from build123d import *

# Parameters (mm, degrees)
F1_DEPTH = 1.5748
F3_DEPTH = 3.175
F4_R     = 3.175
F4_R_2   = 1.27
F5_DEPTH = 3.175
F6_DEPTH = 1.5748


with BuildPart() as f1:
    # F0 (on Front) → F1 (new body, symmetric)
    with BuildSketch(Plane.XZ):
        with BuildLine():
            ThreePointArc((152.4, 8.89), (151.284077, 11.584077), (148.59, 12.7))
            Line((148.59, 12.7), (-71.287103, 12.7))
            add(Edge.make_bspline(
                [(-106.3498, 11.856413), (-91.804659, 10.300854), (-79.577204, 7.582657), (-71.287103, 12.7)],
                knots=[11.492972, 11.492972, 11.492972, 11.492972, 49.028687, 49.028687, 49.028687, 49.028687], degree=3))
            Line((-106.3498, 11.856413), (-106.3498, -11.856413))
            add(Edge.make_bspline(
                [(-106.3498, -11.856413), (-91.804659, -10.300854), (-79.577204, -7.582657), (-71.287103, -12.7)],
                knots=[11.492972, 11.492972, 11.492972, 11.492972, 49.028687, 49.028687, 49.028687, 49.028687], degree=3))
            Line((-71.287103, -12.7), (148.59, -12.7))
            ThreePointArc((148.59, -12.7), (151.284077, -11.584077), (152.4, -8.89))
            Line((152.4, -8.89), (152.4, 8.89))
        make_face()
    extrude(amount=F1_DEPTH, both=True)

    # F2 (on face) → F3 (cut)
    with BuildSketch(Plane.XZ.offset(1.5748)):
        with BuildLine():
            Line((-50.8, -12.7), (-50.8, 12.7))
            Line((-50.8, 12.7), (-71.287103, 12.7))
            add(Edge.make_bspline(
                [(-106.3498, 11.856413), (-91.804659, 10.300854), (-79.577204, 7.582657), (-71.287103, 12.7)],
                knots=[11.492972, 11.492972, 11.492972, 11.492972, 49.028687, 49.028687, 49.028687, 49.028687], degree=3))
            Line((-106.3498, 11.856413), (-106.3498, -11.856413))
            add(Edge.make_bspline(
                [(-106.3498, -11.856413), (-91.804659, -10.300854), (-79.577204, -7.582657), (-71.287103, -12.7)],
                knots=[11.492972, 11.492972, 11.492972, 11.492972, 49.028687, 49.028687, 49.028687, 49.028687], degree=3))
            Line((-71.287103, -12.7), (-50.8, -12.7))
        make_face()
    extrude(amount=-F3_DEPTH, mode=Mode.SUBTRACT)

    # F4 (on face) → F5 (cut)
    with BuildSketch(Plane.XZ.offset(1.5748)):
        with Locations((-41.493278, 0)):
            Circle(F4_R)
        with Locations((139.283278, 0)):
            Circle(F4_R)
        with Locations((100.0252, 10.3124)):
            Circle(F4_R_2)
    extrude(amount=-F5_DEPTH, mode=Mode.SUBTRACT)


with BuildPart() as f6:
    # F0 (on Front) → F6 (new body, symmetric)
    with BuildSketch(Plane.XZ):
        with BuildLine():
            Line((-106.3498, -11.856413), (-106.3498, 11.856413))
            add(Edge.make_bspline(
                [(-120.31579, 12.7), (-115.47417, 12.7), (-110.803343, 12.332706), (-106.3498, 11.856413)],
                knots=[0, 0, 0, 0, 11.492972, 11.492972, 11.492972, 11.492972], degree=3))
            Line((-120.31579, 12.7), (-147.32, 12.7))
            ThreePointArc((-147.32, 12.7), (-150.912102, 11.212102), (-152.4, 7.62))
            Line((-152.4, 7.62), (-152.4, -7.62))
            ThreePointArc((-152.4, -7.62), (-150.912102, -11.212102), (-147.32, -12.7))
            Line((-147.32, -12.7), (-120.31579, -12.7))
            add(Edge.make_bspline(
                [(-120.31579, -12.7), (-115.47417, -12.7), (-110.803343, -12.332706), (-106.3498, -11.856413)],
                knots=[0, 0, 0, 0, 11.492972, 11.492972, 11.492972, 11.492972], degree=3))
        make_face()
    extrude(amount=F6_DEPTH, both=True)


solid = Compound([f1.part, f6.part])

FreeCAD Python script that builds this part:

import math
import FreeCAD as App
import Part
import Sketcher

V = App.Vector
Q = App.Units.Quantity

doc = App.newDocument("Part")
body = doc.addObject("PartDesign::Body", "Body")

# Sketch on XZ plane
sketch1 = body.newObject("Sketcher::SketchObject", "Sketch")
sketch1.AttachmentSupport = (doc.getObject("XZ_Plane"), [""])
sketch1.MapMode = "FlatFace"
sketch1.addGeometry([
    Part.ArcOfCircle(Part.Circle(V(148.590001, 8.890001, 0), V(0, 0, 1), 3.809999), math.radians(-0.000008), math.radians(90.000008)),  # 0
    Part.LineSegment(V(148.59, 12.7, 0), V(-71.287103, 12.7, 0)),  # 1
    Part.BSplineCurve([V(-106.3498, 11.856413, 0), V(-91.804659, 10.300854, 0), V(-79.577204, 7.582657, 0), V(-71.287103, 12.7, 0)], [4, 4], [11.492972, 49.028687], False, 3, [1, 1, 1, 1], False),  # 2
    Part.LineSegment(V(-106.3498, 11.856413, 0), V(-106.3498, -11.856413, 0)),  # 3
    Part.BSplineCurve([V(-106.3498, -11.856413, 0), V(-91.804659, -10.300854, 0), V(-79.577204, -7.582657, 0), V(-71.287103, -12.7, 0)], [4, 4], [11.492972, 49.028687], False, 3, [1, 1, 1, 1], False),  # 4
    Part.LineSegment(V(-71.287103, -12.7, 0), V(148.59, -12.7, 0)),  # 5
    Part.ArcOfCircle(Part.Circle(V(148.590001, -8.890001, 0), V(0, 0, 1), 3.809999), math.radians(-90.000008), math.radians(0.000008)),  # 6
    Part.LineSegment(V(152.4, -8.89, 0), V(152.4, 8.89, 0)),  # 7
], False)
sketch1.addConstraint([
    Sketcher.Constraint("Block", 2),
    Sketcher.Constraint("Block", 4),
    Sketcher.Constraint("Tangent", 0, 2, 1, 1),
    Sketcher.Constraint("Coincident", 1, 2, 2, 2),
    Sketcher.Constraint("Coincident", 2, 1, 3, 1),
    Sketcher.Constraint("Coincident", 3, 2, 4, 1),
    Sketcher.Constraint("Coincident", 4, 2, 5, 1),
    Sketcher.Constraint("Tangent", 5, 2, 6, 1),
    Sketcher.Constraint("Tangent", 6, 2, 7, 1),
    Sketcher.Constraint("Tangent", 7, 2, 0, 1),
    Sketcher.Constraint("Horizontal", 1),
    Sketcher.Constraint("Horizontal", 5),
    Sketcher.Constraint("Vertical", 7),
    Sketcher.Constraint("Equal", 0, 6),
    Sketcher.Constraint("Radius", 0, Q("0.15 in")),
    Sketcher.Constraint("DistanceX", -1, 1, 6, 2, Q("6 in")),
])
pad1 = body.newObject("PartDesign::Pad", "Pad")
pad1.Profile = sketch1
pad1.Length = Q("0.124 in")
pad1.Midplane = True

# Sketch on XZ plane
sketch2 = body.newObject("Sketcher::SketchObject", "Sketch001")
sketch2.AttachmentSupport = (doc.getObject("XZ_Plane"), [""])
sketch2.MapMode = "FlatFace"
sketch2.AttachmentOffset = App.Placement(V(0, 0, 0.062 * 25.4), App.Rotation())
sketch2.addGeometry([
    Part.LineSegment(V(-50.8, -12.7, 0), V(-50.8, 12.7, 0)),  # 0
    Part.LineSegment(V(-50.8, 12.7, 0), V(-71.287103, 12.7, 0)),  # 1
    Part.BSplineCurve([V(-106.3498, 11.856413, 0), V(-91.804659, 10.300854, 0), V(-79.577204, 7.582657, 0), V(-71.287103, 12.7, 0)], [4, 4], [11.492972, 49.028687], False, 3, [1, 1, 1, 1], False),  # 2
    Part.LineSegment(V(-106.3498, 11.856413, 0), V(-106.3498, -11.856413, 0)),  # 3
    Part.BSplineCurve([V(-106.3498, -11.856413, 0), V(-91.804659, -10.300854, 0), V(-79.577204, -7.582657, 0), V(-71.287103, -12.7, 0)], [4, 4], [11.492972, 49.028687], False, 3, [1, 1, 1, 1], False),  # 4
    Part.LineSegment(V(-71.287103, -12.7, 0), V(-50.8, -12.7, 0)),  # 5
], False)
sketch2.addConstraint([
    Sketcher.Constraint("Block", 2),
    Sketcher.Constraint("Block", 4),
    Sketcher.Constraint("Coincident", 0, 2, 1, 1),
    Sketcher.Constraint("Coincident", 1, 2, 2, 2),
    Sketcher.Constraint("Coincident", 2, 1, 3, 1),
    Sketcher.Constraint("Coincident", 3, 2, 4, 1),
    Sketcher.Constraint("Coincident", 4, 2, 5, 1),
    Sketcher.Constraint("Coincident", 5, 2, 0, 1),
    Sketcher.Constraint("Vertical", 0),
    Sketcher.Constraint("Horizontal", 1),
    Sketcher.Constraint("Horizontal", 5),
    Sketcher.Constraint("DistanceX", 0, 2, -1, 1, Q("2 in")),
])
pocket1 = body.newObject("PartDesign::Pocket", "Pocket")
pocket1.Profile = sketch2
pocket1.Length = Q("0.125 in")

# Sketch on XZ plane
sketch3 = body.newObject("Sketcher::SketchObject", "Sketch002")
sketch3.AttachmentSupport = (doc.getObject("XZ_Plane"), [""])
sketch3.MapMode = "FlatFace"
sketch3.AttachmentOffset = App.Placement(V(0, 0, 0.062 * 25.4), App.Rotation())
sketch3.addGeometry([
    Part.Circle(V(-41.5, 0, 0), V(0, 0, 1), 3.2),
    Part.Circle(V(139.3, 0, 0), V(0, 0, 1), 3.2),
    Part.Circle(V(100, 10.3, 0), V(0, 0, 1), 1.3),
], False)
sketch3.addConstraint([
    Sketcher.Constraint("Equal", 0, 1),
    Sketcher.Constraint("PointOnObject", 0, 3, -1),
    Sketcher.Constraint("PointOnObject", 1, 3, -1),
    Sketcher.Constraint("Diameter", 2, Q("0.1 in")),
    Sketcher.Constraint("Diameter", 0, Q("0.25 in")),
    Sketcher.Constraint("DistanceX", -1, 1, 2, 3, Q("3.938 in")),
    Sketcher.Constraint("DistanceY", -1, 1, 2, 3, Q("0.406 in")),
    Sketcher.Constraint("DistanceX", -1, 1, 1, 3, 139.283278),
    Sketcher.Constraint("DistanceX", 0, 3, -1, 1, 41.493278),
])
pocket2 = body.newObject("PartDesign::Pocket", "Pocket001")
pocket2.Profile = sketch3
pocket2.Length = Q("0.125 in")
body2 = doc.addObject("PartDesign::Body", "Body001")

# Sketch on XZ plane
sketch4 = body2.newObject("Sketcher::SketchObject", "Sketch003")
sketch4.AttachmentSupport = (doc.getObject("XZ_Plane001"), [""])
sketch4.MapMode = "FlatFace"
sketch4.addGeometry([
    Part.LineSegment(V(-106.3498, -11.856413, 0), V(-106.3498, 11.856413, 0)),  # 0
    Part.BSplineCurve([V(-120.31579, 12.7, 0), V(-115.47417, 12.7, 0), V(-110.803343, 12.332706, 0), V(-106.3498, 11.856413, 0)], [4, 4], [0, 11.492972], False, 3, [1, 1, 1, 1], False),  # 1
    Part.LineSegment(V(-120.31579, 12.7, 0), V(-147.32, 12.7, 0)),  # 2
    Part.ArcOfCircle(Part.Circle(V(-147.319998, 7.619998, 0), V(0, 0, 1), 5.080002), math.radians(90.000017), math.radians(179.999983)),  # 3
    Part.LineSegment(V(-152.4, 7.62, 0), V(-152.4, -7.62, 0)),  # 4
    Part.ArcOfCircle(Part.Circle(V(-147.319998, -7.619998, 0), V(0, 0, 1), 5.080002), math.radians(-179.999983), math.radians(-90.000017)),  # 5
    Part.LineSegment(V(-147.32, -12.7, 0), V(-120.31579, -12.7, 0)),  # 6
    Part.BSplineCurve([V(-120.31579, -12.7, 0), V(-115.47417, -12.7, 0), V(-110.803343, -12.332706, 0), V(-106.3498, -11.856413, 0)], [4, 4], [0, 11.492972], False, 3, [1, 1, 1, 1], False),  # 7
], False)
sketch4.addConstraint([
    Sketcher.Constraint("Block", 1),
    Sketcher.Constraint("Block", 7),
    Sketcher.Constraint("Coincident", 0, 2, 1, 2),
    Sketcher.Constraint("Coincident", 1, 1, 2, 1),
    Sketcher.Constraint("Tangent", 2, 2, 3, 1),
    Sketcher.Constraint("Tangent", 3, 2, 4, 1),
    Sketcher.Constraint("Tangent", 4, 2, 5, 1),
    Sketcher.Constraint("Tangent", 5, 2, 6, 1),
    Sketcher.Constraint("Coincident", 6, 2, 7, 1),
    Sketcher.Constraint("Coincident", 7, 2, 0, 1),
    Sketcher.Constraint("Horizontal", 2),
    Sketcher.Constraint("Vertical", 4),
    Sketcher.Constraint("Horizontal", 6),
    Sketcher.Constraint("Equal", 3, 5),
    Sketcher.Constraint("Radius", 3, Q("0.2000001 in")),
    Sketcher.Constraint("DistanceX", 3, 2, -1, 1, Q("6 in")),
])
pad2 = body2.newObject("PartDesign::Pad", "Pad001")
pad2.Profile = sketch4
pad2.Length = Q("0.124 in")
pad2.Midplane = True

doc.recompute()
